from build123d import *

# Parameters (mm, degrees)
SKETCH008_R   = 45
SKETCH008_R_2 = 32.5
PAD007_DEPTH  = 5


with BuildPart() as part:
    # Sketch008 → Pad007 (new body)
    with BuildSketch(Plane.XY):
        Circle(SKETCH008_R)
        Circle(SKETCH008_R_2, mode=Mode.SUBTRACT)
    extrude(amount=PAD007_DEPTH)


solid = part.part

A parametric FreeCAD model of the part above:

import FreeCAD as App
import Part
import Sketcher
Q = App.Units.Quantity

doc = App.newDocument("Part")
body = doc.addObject("PartDesign::Body", "Body")

sketch1 = body.newObject("Sketcher::SketchObject", "Sketch")
sketch1.AttachmentSupport = (doc.getObject("XY_Plane"), [""])
sketch1.MapMode = "FlatFace"
sketch1.addGeometry(Part.Circle(App.Vector(0, 0, 0), App.Vector(0, 0, 1), 45), False)
sketch1.addGeometry(Part.Circle(App.Vector(0, 0, 0), App.Vector(0, 0, 1), 32), False)
sketch1.addConstraint(Sketcher.Constraint("Coincident", 0, 3, -1, 1))
sketch1.addConstraint(Sketcher.Constraint("Coincident", 1, 3, -1, 1))
sketch1.addConstraint(Sketcher.Constraint("Diameter", 0, Q("90 mm")))
sketch1.addConstraint(Sketcher.Constraint("Diameter", 1, Q("65 mm")))
pad1 = body.newObject("PartDesign::Pad", "Pad")
pad1.Profile = sketch1
pad1.Length = 5

doc.recompute()
